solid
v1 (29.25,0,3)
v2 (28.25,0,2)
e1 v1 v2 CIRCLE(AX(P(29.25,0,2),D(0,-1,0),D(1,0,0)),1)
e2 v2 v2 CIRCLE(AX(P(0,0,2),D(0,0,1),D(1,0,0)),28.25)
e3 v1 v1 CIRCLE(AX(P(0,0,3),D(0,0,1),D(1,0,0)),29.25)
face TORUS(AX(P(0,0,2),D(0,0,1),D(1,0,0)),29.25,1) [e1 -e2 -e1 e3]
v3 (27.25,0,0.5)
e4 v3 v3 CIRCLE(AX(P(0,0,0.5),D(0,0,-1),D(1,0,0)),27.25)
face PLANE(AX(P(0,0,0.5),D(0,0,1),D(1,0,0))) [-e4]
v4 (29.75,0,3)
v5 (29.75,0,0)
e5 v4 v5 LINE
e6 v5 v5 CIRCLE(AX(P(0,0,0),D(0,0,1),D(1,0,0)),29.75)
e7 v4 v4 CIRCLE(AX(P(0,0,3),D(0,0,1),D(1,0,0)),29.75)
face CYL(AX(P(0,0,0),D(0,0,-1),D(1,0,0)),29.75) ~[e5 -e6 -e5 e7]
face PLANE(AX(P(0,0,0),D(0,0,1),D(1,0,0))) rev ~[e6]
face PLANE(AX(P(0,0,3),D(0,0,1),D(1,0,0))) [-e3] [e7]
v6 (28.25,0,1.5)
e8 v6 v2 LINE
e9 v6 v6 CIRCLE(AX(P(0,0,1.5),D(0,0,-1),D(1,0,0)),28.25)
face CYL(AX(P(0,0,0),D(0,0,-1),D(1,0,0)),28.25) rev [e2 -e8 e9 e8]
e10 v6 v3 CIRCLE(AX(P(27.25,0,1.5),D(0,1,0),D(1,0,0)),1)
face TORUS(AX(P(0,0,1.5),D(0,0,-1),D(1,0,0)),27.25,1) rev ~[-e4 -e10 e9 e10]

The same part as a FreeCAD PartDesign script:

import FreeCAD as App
import Part
import Sketcher
from FreeCAD import Vector
Q = App.Units.Quantity


def edges_at(feature, points):
    """Names of the edges that pass closest to the given points."""
    edges = feature.Shape.Edges
    near = lambda p: min(range(len(edges)), key=lambda i: edges[i].distToShape(Part.Vertex(*p))[0])
    return sorted({f"Edge{near(p) + 1}" for p in points})

doc = App.newDocument("Part")
body = doc.addObject("PartDesign::Body", "Body")

# Sketch on XY plane
sketch1 = body.newObject("Sketcher::SketchObject", "Sketch")
sketch1.AttachmentSupport = (doc.getObject("XY_Plane"), [""])
sketch1.MapMode = "FlatFace"
sketch1.addGeometry([
    Part.Circle(Vector(0, 0, 0), Vector(0, 0, 1), 29.75),
    Part.Circle(Vector(0, 0, 0), Vector(0, 0, 1), 28.25),
], False)
sketch1.addConstraint([
    Sketcher.Constraint("Coincident", 0, 3, -1, 1),
    Sketcher.Constraint("Coincident", 1, 3, -1, 1),
    Sketcher.Constraint("Diameter", 0, Q("59.5 mm")),
    Sketcher.Constraint("Diameter", 1, Q("56.5 mm")),
])
pad1 = body.newObject("PartDesign::Pad", "Pad")
pad1.Profile = sketch1
pad1.Length = 3

# Sketch on XY plane
sketch2 = body.newObject("Sketcher::SketchObject", "Sketch001")
sketch2.AttachmentSupport = (doc.getObject("XY_Plane"), [""])
sketch2.MapMode = "FlatFace"
sketch2.addGeometry(Part.Circle(Vector(0, 0, 0), Vector(0, 0, 1), 29.75), False)
sketch2.addConstraint([
    Sketcher.Constraint("Coincident", 0, 3, -1, 1),
    Sketcher.Constraint("Diameter", 0, Q("59.5 mm")),
])
pad2 = body.newObject("PartDesign::Pad", "Pad001")
pad2.Profile = sketch2
pad2.Length = 0.5
doc.recompute()

fillet = body.newObject("PartDesign::Fillet", "Fillet")
fillet.Base = (pad2, edges_at(pad2, [(-28.25, 0, 3), (-28.25, 0, 0.5)]))
fillet.Radius = 1

doc.recompute()
